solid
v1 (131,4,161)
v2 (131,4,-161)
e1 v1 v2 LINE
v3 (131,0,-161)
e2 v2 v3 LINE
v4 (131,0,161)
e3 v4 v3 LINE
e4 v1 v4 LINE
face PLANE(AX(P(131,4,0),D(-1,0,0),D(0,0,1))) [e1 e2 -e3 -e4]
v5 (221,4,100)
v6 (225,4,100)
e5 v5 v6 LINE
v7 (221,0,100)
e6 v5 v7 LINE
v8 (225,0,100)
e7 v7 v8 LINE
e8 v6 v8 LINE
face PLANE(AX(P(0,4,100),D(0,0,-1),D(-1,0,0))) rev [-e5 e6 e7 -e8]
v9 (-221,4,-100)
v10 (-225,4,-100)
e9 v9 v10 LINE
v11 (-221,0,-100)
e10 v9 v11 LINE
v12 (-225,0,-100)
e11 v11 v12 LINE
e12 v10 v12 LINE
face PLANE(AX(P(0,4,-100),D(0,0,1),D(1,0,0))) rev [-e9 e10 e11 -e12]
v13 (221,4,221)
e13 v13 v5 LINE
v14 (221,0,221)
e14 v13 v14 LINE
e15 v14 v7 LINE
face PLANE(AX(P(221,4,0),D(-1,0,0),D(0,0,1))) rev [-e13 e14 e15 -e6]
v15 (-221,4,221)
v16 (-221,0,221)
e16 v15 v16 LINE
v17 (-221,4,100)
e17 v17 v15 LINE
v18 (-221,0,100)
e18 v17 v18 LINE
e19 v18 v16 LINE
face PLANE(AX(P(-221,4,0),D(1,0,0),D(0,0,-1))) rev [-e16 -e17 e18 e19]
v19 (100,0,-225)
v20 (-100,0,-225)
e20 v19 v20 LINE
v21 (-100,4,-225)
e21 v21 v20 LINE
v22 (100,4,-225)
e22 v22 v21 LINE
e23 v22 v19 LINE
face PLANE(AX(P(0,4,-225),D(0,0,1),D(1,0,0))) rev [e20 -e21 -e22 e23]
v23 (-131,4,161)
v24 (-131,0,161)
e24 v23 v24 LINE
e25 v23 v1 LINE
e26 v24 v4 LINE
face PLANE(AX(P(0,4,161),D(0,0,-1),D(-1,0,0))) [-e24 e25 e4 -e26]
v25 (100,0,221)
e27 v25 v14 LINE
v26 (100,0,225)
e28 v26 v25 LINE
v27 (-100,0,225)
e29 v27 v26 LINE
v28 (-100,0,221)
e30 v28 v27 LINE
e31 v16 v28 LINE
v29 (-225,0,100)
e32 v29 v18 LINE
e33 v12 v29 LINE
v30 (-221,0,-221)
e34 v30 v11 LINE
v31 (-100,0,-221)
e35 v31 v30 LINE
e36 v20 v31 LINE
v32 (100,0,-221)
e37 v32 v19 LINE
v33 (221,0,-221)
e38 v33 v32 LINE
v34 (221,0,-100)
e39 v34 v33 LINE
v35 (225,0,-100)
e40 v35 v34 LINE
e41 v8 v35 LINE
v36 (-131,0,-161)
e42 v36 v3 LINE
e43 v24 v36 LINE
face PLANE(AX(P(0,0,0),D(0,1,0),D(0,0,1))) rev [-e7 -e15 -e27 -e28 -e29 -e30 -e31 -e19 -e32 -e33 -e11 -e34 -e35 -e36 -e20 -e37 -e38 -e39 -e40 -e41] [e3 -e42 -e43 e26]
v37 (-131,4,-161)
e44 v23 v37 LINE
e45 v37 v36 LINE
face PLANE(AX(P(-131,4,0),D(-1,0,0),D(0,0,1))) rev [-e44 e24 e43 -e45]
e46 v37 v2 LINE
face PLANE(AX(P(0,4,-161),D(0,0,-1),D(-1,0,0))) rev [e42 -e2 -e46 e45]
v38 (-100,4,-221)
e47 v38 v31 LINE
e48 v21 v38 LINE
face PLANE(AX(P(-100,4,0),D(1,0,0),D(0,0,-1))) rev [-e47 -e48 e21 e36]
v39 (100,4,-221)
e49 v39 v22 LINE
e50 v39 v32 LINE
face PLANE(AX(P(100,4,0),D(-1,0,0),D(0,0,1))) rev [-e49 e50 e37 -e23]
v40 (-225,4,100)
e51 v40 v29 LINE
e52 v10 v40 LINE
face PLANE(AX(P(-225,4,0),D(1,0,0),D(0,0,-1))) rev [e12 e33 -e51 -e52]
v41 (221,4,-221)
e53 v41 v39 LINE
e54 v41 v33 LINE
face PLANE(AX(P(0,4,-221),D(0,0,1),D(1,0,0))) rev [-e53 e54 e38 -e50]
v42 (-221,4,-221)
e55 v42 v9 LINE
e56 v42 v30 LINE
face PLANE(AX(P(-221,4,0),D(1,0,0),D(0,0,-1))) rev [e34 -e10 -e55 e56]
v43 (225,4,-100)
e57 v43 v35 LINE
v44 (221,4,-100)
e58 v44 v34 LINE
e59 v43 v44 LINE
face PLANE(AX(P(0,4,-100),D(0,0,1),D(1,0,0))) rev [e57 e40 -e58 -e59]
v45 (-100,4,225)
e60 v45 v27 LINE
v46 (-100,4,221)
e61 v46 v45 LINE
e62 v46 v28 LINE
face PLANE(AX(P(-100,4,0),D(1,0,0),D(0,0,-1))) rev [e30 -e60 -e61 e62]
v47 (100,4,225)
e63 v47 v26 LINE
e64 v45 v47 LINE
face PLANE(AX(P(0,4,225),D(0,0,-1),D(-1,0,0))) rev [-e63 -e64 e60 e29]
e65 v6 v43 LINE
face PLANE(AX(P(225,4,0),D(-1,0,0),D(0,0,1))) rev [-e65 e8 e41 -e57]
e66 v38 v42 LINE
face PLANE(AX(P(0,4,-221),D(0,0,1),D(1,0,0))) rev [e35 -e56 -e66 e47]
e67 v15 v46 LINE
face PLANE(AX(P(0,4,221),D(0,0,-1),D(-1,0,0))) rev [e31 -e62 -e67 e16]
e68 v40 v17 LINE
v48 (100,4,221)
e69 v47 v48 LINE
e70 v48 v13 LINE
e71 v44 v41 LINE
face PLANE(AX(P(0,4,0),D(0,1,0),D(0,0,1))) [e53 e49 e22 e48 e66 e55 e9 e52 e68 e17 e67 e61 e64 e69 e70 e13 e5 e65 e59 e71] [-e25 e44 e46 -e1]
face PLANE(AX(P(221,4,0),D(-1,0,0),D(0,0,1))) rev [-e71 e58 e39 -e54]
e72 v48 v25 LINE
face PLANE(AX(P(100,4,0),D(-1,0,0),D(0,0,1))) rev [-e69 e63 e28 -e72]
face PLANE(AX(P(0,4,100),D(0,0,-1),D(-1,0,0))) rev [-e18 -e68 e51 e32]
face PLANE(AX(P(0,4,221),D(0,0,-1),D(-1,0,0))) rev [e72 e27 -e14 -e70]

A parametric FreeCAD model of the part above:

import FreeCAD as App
import Part
import Sketcher
from FreeCAD import Vector


def add_polygon(sketch, points):
    """Adds a closed chain of lines whose ends are joined by coincident constraints."""
    first, n = sketch.GeometryCount, len(points)
    for a, b in zip(points, points[1:] + points[:1]):
        sketch.addGeometry(Part.LineSegment(App.Vector(*a, 0), App.Vector(*b, 0)), False)
    for i in range(n):
        sketch.addConstraint(Sketcher.Constraint("Coincident", first + i, 2, first + (i + 1) % n, 1))

doc = App.newDocument("Part")
body = doc.addObject("PartDesign::Body", "Body")

sketch1 = body.newObject("Sketcher::SketchObject", "Sketch")
sketch1.AttachmentSupport = (doc.getObject("XZ_Plane"), [""])
sketch1.MapMode = "FlatFace"
add_polygon(sketch1, [(-221, -100), (-225, -100), (-225, 100), (-221, 100), (-221, 221), (-100, 221), (-100, 225), (100, 225), (100, 221), (221, 221), (221, 100), (225, 100), (225, -100), (221, -100), (221, -221), (100, -221), (100, -225), (-100, -225), (-100, -221), (-221, -221)])
add_polygon(sketch1, [(131, 161), (-131, 161), (-131, -161), (131, -161)])
sketch1.addConstraint(Sketcher.Constraint("Horizontal", 0))
sketch1.addConstraint(Sketcher.Constraint("Vertical", 1))
sketch1.addConstraint(Sketcher.Constraint("Horizontal", 2))
sketch1.addConstraint(Sketcher.Constraint("Vertical", 3))
sketch1.addConstraint(Sketcher.Constraint("Horizontal", 4))
sketch1.addConstraint(Sketcher.Constraint("Vertical", 5))
sketch1.addConstraint(Sketcher.Constraint("Horizontal", 6))
sketch1.addConstraint(Sketcher.Constraint("Vertical", 7))
sketch1.addConstraint(Sketcher.Constraint("Horizontal", 8))
sketch1.addConstraint(Sketcher.Constraint("Vertical", 9))
sketch1.addConstraint(Sketcher.Constraint("Horizontal", 10))
sketch1.addConstraint(Sketcher.Constraint("Vertical", 11))
sketch1.addConstraint(Sketcher.Constraint("Horizontal", 12))
sketch1.addConstraint(Sketcher.Constraint("Vertical", 13))
sketch1.addConstraint(Sketcher.Constraint("Horizontal", 14))
sketch1.addConstraint(Sketcher.Constraint("Vertical", 15))
sketch1.addConstraint(Sketcher.Constraint("Horizontal", 16))
sketch1.addConstraint(Sketcher.Constraint("Vertical", 17))
sketch1.addConstraint(Sketcher.Constraint("Horizontal", 18))
sketch1.addConstraint(Sketcher.Constraint("Vertical", 19))
sketch1.addConstraint(Sketcher.Constraint("Horizontal", 20))
sketch1.addConstraint(Sketcher.Constraint("Vertical", 21))
sketch1.addConstraint(Sketcher.Constraint("Horizontal", 22))
sketch1.addConstraint(Sketcher.Constraint("Vertical", 23))
sketch1.addConstraint(Sketcher.Constraint("Symmetric", 0, 2, 10, 2, -1, 1))
sketch1.addConstraint(Sketcher.Constraint("Symmetric", 2, 2, 12, 2, -1, 1))
sketch1.addConstraint(Sketcher.Constraint("Symmetric", 4, 2, 14, 2, -1, 1))
sketch1.addConstraint(Sketcher.Constraint("Symmetric", 6, 2, 16, 2, -1, 1))
sketch1.addConstraint(Sketcher.Constraint("Symmetric", 8, 2, 18, 2, -1, 1))
sketch1.addConstraint(Sketcher.Constraint("Symmetric", 20, 2, 22, 2, -1, 1))
sketch1.addConstraint(Sketcher.Constraint("Symmetric", 4, 2, 7, 2, -2))
sketch1.addConstraint(Sketcher.Constraint("Symmetric", 2, 2, 9, 2, -2))
sketch1.addConstraint(Sketcher.Constraint("Equal", 16, 1))
sketch1.addConstraint(Sketcher.Constraint("Equal", 18, 3))
sketch1.addConstraint(Sketcher.Constraint("Equal", 12, 5))
sketch1.addConstraint(Sketcher.Constraint("DistanceX", 0, 2, 0, 1, 4.0))
sketch1.addConstraint(Sketcher.Constraint("DistanceX", 4, 1, 4, 2, 121.0))
sketch1.addConstraint(Sketcher.Constraint("DistanceX", 6, 1, 6, 2, 200.0))
sketch1.addConstraint(Sketcher.Constraint("DistanceX", 20, 2, 20, 1, 262.0))
sketch1.addConstraint(Sketcher.Constraint("DistanceY", 21, 2, 21, 1, 322.0))
pad1 = body.newObject("PartDesign::Pad", "Pad")
pad1.Profile = sketch1
pad1.Length = 4
pad1.Reversed = True

doc.recompute()
